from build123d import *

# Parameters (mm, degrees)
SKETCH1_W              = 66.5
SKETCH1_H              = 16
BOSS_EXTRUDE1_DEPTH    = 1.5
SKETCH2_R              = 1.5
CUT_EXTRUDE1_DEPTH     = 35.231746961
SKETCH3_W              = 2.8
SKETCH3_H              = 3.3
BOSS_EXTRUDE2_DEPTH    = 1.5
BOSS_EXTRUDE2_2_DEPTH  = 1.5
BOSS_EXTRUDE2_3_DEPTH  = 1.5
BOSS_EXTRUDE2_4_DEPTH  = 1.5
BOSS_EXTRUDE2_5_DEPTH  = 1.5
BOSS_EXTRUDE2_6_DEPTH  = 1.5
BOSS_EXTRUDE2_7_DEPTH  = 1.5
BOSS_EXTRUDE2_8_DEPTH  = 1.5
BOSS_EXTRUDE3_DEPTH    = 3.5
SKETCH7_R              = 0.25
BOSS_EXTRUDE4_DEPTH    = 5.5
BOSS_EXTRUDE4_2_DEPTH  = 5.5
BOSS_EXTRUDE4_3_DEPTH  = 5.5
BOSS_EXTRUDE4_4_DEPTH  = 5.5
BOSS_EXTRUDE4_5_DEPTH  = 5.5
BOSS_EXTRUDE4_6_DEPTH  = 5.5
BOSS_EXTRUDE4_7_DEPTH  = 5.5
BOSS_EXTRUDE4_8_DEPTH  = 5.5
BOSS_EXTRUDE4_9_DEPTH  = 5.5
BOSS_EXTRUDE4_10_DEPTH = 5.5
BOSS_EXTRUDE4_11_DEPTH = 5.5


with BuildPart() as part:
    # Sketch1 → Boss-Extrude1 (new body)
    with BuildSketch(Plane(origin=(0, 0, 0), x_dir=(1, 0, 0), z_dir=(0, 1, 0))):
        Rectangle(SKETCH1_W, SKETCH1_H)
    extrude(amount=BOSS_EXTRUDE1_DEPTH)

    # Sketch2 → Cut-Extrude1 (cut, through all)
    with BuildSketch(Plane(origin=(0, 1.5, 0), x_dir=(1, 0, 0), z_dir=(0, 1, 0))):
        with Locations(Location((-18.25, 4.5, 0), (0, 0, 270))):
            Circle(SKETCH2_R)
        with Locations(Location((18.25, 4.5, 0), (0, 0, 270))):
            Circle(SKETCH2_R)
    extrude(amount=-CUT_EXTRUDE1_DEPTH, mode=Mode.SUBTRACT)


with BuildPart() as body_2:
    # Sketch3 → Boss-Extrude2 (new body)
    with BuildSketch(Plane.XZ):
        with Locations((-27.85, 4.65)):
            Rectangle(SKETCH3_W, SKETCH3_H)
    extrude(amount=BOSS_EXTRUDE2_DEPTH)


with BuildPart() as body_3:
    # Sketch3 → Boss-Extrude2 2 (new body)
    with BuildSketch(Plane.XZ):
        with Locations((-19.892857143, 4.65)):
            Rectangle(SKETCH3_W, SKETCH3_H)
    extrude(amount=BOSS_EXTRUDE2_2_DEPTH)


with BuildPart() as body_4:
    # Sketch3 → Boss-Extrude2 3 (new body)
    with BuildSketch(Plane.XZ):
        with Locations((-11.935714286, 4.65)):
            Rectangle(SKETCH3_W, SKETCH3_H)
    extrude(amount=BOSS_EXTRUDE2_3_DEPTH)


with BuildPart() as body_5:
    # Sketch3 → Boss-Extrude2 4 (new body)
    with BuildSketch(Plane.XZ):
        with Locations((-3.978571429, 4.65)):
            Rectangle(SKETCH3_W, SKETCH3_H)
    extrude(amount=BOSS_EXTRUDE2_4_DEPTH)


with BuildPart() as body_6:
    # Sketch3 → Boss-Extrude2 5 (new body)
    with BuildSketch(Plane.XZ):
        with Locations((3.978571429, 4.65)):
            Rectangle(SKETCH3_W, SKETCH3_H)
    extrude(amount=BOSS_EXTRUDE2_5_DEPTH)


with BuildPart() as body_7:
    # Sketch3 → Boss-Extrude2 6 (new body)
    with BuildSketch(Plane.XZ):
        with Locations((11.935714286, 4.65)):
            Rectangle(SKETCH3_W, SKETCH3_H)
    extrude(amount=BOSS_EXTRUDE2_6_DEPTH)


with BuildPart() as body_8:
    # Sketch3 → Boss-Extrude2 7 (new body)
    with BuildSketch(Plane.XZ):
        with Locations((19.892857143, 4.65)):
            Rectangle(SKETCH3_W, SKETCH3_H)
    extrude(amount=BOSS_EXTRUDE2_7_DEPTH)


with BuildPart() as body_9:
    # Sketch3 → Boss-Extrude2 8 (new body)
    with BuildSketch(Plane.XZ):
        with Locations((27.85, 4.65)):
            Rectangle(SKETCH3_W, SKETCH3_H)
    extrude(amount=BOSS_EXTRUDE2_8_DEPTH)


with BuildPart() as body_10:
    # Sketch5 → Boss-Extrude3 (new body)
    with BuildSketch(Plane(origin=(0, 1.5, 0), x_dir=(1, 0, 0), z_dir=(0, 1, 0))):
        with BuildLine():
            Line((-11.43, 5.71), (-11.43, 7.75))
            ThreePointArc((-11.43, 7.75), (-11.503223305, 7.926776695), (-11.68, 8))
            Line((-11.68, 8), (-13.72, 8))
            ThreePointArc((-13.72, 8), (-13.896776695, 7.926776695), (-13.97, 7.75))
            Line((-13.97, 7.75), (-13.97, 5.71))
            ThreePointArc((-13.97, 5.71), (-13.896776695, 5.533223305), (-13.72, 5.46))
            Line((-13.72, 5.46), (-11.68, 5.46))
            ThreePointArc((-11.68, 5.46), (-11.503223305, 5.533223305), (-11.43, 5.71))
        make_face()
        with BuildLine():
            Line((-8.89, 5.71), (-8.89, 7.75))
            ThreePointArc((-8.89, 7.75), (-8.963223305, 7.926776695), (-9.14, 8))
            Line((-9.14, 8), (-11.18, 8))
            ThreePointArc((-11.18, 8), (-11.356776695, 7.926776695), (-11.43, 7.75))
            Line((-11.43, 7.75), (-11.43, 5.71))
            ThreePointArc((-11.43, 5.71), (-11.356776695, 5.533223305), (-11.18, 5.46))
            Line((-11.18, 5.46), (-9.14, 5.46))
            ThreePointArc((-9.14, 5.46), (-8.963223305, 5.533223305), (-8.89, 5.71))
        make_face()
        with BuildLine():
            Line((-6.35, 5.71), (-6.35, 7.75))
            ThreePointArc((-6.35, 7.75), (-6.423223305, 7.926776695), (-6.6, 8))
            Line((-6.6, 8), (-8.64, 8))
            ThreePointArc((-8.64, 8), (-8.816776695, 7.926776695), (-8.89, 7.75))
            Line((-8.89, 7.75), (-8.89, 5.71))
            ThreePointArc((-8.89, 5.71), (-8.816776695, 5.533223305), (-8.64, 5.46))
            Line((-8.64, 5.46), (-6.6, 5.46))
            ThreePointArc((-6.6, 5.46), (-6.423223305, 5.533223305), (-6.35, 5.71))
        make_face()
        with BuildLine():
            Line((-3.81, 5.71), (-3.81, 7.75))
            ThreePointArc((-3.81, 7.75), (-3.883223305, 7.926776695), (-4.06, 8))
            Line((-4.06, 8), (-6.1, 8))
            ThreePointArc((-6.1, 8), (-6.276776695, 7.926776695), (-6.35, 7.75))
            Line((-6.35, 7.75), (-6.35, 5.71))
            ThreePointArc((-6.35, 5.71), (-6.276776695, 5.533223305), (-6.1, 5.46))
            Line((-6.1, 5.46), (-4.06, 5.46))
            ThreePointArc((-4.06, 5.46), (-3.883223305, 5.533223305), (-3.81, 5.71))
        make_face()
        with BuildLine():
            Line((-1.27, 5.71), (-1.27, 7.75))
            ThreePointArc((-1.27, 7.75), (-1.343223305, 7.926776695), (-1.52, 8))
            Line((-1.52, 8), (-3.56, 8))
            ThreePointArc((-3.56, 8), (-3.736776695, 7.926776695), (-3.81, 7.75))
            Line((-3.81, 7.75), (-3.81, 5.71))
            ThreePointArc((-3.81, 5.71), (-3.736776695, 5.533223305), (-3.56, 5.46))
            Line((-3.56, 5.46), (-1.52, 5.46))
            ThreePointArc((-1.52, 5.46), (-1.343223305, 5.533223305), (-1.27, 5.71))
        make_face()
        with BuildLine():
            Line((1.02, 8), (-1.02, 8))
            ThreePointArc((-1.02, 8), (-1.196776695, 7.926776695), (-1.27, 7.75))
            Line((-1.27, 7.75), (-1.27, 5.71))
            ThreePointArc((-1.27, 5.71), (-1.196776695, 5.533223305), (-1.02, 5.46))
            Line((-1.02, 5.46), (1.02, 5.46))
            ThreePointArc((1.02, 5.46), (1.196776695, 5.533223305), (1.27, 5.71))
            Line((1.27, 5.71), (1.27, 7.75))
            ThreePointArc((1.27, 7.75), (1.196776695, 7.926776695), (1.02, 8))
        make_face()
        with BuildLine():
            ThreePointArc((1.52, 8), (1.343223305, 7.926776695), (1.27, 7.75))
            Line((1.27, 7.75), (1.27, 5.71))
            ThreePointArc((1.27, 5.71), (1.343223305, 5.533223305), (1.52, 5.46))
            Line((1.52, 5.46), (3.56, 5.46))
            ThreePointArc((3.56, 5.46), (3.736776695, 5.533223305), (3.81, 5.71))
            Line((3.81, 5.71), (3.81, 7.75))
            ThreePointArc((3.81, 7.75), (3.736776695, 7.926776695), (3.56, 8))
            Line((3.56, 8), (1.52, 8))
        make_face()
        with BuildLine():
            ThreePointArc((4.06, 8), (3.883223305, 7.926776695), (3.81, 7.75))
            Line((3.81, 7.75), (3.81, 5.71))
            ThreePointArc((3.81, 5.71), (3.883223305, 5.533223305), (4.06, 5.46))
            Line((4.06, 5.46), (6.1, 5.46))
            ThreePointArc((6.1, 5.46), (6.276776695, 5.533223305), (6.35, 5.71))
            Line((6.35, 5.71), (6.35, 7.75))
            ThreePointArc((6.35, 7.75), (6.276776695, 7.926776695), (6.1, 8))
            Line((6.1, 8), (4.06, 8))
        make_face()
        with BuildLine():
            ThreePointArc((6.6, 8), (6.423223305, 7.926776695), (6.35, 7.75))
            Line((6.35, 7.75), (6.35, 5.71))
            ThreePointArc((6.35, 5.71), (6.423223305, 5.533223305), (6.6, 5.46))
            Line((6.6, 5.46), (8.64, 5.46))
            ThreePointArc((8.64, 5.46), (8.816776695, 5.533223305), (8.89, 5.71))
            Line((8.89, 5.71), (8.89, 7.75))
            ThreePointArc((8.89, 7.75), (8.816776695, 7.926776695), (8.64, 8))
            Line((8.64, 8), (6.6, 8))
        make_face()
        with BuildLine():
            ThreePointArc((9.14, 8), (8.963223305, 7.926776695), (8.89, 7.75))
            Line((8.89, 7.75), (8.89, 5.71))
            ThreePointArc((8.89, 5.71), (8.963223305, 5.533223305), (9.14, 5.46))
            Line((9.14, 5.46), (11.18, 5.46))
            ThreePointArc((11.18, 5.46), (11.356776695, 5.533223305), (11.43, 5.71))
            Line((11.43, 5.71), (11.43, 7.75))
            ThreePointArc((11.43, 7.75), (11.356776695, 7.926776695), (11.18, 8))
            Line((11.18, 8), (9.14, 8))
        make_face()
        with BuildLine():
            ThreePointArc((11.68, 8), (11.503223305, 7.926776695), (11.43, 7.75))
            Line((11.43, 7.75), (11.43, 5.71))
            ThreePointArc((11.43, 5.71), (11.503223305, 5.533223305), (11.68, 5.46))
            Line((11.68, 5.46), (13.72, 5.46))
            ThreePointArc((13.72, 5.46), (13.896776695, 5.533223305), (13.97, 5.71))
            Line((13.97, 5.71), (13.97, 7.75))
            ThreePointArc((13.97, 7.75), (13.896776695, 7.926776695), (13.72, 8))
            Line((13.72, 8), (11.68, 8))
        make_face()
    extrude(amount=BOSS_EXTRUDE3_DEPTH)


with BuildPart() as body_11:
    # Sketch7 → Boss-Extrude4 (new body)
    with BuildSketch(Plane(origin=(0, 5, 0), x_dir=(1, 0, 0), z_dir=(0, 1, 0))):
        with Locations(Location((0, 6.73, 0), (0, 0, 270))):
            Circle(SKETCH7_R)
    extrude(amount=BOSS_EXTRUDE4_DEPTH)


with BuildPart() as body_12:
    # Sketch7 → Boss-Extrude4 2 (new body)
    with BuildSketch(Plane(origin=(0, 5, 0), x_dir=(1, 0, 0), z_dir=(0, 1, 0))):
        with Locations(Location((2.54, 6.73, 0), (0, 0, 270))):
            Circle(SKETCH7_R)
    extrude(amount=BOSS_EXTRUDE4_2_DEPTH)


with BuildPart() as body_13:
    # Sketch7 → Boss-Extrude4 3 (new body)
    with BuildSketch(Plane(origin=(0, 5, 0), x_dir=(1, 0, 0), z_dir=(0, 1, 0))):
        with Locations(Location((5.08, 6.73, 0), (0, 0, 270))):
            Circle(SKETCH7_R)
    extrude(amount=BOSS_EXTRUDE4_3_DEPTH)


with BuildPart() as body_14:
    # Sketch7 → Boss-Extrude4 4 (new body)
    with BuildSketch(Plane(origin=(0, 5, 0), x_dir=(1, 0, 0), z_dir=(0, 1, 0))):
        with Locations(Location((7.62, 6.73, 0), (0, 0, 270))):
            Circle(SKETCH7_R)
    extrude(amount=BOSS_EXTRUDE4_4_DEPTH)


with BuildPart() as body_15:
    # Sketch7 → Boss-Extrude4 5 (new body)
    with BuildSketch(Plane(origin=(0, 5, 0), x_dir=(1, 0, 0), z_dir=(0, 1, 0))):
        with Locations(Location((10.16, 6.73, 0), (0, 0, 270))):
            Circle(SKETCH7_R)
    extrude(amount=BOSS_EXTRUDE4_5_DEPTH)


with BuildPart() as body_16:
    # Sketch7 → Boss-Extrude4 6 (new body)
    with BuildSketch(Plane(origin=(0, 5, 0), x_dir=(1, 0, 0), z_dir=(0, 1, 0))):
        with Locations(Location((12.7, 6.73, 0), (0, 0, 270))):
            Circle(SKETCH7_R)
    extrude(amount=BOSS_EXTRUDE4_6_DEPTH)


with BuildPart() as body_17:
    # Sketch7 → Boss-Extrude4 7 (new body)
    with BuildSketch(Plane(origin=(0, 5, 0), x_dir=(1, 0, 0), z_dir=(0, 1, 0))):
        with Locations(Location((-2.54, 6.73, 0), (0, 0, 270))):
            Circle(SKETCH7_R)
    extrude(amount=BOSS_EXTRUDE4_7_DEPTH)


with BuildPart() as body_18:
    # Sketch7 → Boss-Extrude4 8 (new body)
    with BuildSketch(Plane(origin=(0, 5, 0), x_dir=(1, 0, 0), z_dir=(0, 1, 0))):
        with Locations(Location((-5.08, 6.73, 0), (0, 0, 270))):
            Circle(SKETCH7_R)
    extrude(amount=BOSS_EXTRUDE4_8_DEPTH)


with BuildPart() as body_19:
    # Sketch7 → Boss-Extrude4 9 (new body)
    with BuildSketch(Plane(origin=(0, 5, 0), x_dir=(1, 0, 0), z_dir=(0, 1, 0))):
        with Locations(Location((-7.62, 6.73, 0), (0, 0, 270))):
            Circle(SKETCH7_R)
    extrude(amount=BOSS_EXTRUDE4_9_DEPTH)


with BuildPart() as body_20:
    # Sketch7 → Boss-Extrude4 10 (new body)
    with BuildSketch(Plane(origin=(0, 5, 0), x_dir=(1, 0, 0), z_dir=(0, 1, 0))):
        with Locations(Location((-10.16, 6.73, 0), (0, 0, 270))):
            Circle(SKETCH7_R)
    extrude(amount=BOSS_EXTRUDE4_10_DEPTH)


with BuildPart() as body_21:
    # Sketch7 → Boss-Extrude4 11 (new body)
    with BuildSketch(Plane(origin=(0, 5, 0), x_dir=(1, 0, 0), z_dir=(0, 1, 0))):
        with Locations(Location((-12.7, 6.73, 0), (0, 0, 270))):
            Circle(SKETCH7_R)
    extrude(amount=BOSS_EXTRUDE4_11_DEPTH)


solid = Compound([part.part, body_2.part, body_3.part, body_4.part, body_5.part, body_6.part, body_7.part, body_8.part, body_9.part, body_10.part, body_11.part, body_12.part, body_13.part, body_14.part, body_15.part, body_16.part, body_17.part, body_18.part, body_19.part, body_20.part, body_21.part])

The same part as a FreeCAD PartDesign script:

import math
import FreeCAD as App
import Part
import Sketcher
Q = App.Units.Quantity

doc = App.newDocument("Part")
params = doc.addObject("Spreadsheet::Sheet", "Params")
for row, (alias, value) in enumerate([
    ("sketch1_height", "16 mm"),
    ("sketch1_width", "66.5 mm"),
    ("pad1_length", "1.5 mm"),
    ("sketch2_diameter", "3 mm"),
    ("sketch3_width", "2.8 mm"),
    ("sketch3_height", "3.3 mm"),
    ("pad2_length", "1.5 mm"),
    ("sketch4_width", "2.8 mm"),
    ("sketch4_height", "3.3 mm"),
    ("pad3_length", "1.5 mm"),
    ("sketch5_width", "2.8 mm"),
    ("sketch5_height", "3.3 mm"),
    ("pad4_length", "1.5 mm"),
    ("sketch6_width", "2.8 mm"),
    ("sketch6_height", "3.3 mm"),
    ("pad5_length", "1.5 mm"),
    ("sketch7_width", "2.8 mm"),
    ("sketch7_height", "3.3 mm"),
    ("pad6_length", "1.5 mm"),
    ("sketch8_width", "2.8 mm"),
    ("sketch8_height", "3.3 mm"),
    ("pad7_length", "1.5 mm"),
    ("sketch9_width", "2.8 mm"),
    ("sketch9_height", "3.3 mm"),
    ("pad8_length", "1.5 mm"),
    ("sketch10_width", "2.8 mm"),
    ("sketch10_height", "3.3 mm"),
    ("pad9_length", "1.5 mm"),
    ("sketch11_radius", "0.25 mm"),
    ("sketch11_width", "2.04 mm"),
    ("pad10_length", "3.5 mm"),
    ("sketch12_diameter", "0.5 mm"),
    ("pad11_length", "5.5 mm"),
    ("sketch13_diameter", "0.5 mm"),
    ("pad12_length", "5.5 mm"),
    ("sketch14_diameter", "0.5 mm"),
    ("pad13_length", "5.5 mm"),
    ("sketch15_diameter", "0.5 mm"),
    ("pad14_length", "5.5 mm"),
    ("sketch16_diameter", "0.5 mm"),
    ("pad15_length", "5.5 mm"),
    ("sketch17_diameter", "0.5 mm"),
    ("pad16_length", "5.5 mm"),
    ("sketch18_diameter", "0.5 mm"),
    ("pad17_length", "5.5 mm"),
    ("sketch19_diameter", "0.5 mm"),
    ("pad18_length", "5.5 mm"),
    ("sketch20_diameter", "0.5 mm"),
    ("pad19_length", "5.5 mm"),
    ("sketch21_diameter", "0.5 mm"),
    ("pad20_length", "5.5 mm"),
    ("sketch22_diameter", "0.5 mm"),
    ("pad21_length", "5.5 mm"),
], start=1):
    params.set(f"A{row}", alias)
    params.set(f"B{row}", "=" + value)
    params.setAlias(f"B{row}", alias)

body = doc.addObject("PartDesign::Body", "Body")

# Sketch on XZ plane
sketch1 = body.newObject("Sketcher::SketchObject", "Sketch")
sketch1.AttachmentSupport = (doc.getObject("XZ_Plane"), [""])
sketch1.MapMode = "FlatFace"
sketch1.addGeometry([
    Part.LineSegment(App.Vector(-33, -8, 0), App.Vector(-33, 8, 0)),
    Part.LineSegment(App.Vector(-33, 8, 0), App.Vector(33, 8, 0)),
    Part.LineSegment(App.Vector(33, 8, 0), App.Vector(33, -8, 0)),
    Part.LineSegment(App.Vector(33, -8, 0), App.Vector(-33, -8, 0)),
], False)
sketch1.addConstraint([
    Sketcher.Constraint("Coincident", 0, 2, 1, 1),
    Sketcher.Constraint("Coincident", 1, 2, 2, 1),
    Sketcher.Constraint("Coincident", 2, 2, 3, 1),
    Sketcher.Constraint("Coincident", 3, 2, 0, 1),
    Sketcher.Constraint("Vertical", 0),
    Sketcher.Constraint("Horizontal", 1),
    Sketcher.Constraint("Vertical", 2),
    Sketcher.Constraint("Horizontal", 3),
    Sketcher.Constraint("Symmetric", 0, 2, 2, 2, -1, 1),
    Sketcher.Constraint("DistanceY", 0, 1, 0, 2, Q("16 mm")),
    Sketcher.Constraint("DistanceX", 1, 1, 1, 2, Q("66.5 mm")),
])
sketch1.setExpression("Constraints[9]", "Params.sketch1_height")
sketch1.setExpression("Constraints[10]", "Params.sketch1_width")
pad1 = body.newObject("PartDesign::Pad", "Pad")
pad1.Profile = sketch1
pad1.setExpression("Length", "Params.pad1_length")
pad1.Reversed = True

# Sketch on XZ plane
sketch2 = body.newObject("Sketcher::SketchObject", "Sketch001")
sketch2.AttachmentSupport = (doc.getObject("XZ_Plane"), [""])
sketch2.MapMode = "FlatFace"
sketch2.AttachmentOffset = App.Placement(App.Vector(0, 0, -1.5), App.Rotation())
sketch2.addGeometry([
    Part.Circle(App.Vector(-18.2, -4.5, 0), App.Vector(0, 0, 1), 1.5),
    Part.Circle(App.Vector(18.2, -4.5, 0), App.Vector(0, 0, 1), 1.5),
], False)
sketch2.addConstraint([
    Sketcher.Constraint("Equal", 0, 1),
    Sketcher.Constraint("Symmetric", 0, 3, 1, 3, -2),
    Sketcher.Constraint("Diameter", 0, Q("3 mm")),
    Sketcher.Constraint("DistanceY", 0, 3, -1, 1, Q("4.5 mm")),
    Sketcher.Constraint("DistanceX", 0, 3, 1, 3, Q("36.5 mm")),
])
sketch2.setExpression("Constraints[2]", "Params.sketch2_diameter")
pocket1 = body.newObject("PartDesign::Pocket", "Pocket")
pocket1.Profile = sketch2
pocket1.Type = "ThroughAll"
pocket1.Reversed = True
body2 = doc.addObject("PartDesign::Body", "Body001")

# Sketch on XZ plane
sketch3 = body2.newObject("Sketcher::SketchObject", "Sketch002")
sketch3.AttachmentSupport = (doc.getObject("XZ_Plane001"), [""])
sketch3.MapMode = "FlatFace"
sketch3.addGeometry([
    Part.LineSegment(App.Vector(-29.2, 6.3, 0), App.Vector(-29.2, 3, 0)),
    Part.LineSegment(App.Vector(-29.2, 3, 0), App.Vector(-26.4, 3, 0)),
    Part.LineSegment(App.Vector(-26.4, 3, 0), App.Vector(-26.4, 6.3, 0)),
    Part.LineSegment(App.Vector(-26.4, 6.3, 0), App.Vector(-29.2, 6.3, 0)),
], False)
sketch3.addConstraint([
    Sketcher.Constraint("Coincident", 0, 2, 1, 1),
    Sketcher.Constraint("Coincident", 1, 2, 2, 1),
    Sketcher.Constraint("Coincident", 2, 2, 3, 1),
    Sketcher.Constraint("Coincident", 3, 2, 0, 1),
    Sketcher.Constraint("Vertical", 0),
    Sketcher.Constraint("Horizontal", 1),
    Sketcher.Constraint("Vertical", 2),
    Sketcher.Constraint("Horizontal", 3),
    Sketcher.Constraint("DistanceX", 1, 1, 1, 2, Q("2.8 mm")),
    Sketcher.Constraint("DistanceY", 0, 2, 0, 1, Q("3.3 mm")),
    Sketcher.Constraint("DistanceY", -1, 1, 0, 2, Q("3 mm")),
    Sketcher.Constraint("DistanceX", 0, 2, -1, 1, Q("29.25 mm")),
])
sketch3.setExpression("Constraints[8]", "Params.sketch3_width")
sketch3.setExpression("Constraints[9]", "Params.sketch3_height")
pad2 = body2.newObject("PartDesign::Pad", "Pad001")
pad2.Profile = sketch3
pad2.setExpression("Length", "Params.pad2_length")
body3 = doc.addObject("PartDesign::Body", "Body002")

# Sketch on XZ plane
sketch4 = body3.newObject("Sketcher::SketchObject", "Sketch003")
sketch4.AttachmentSupport = (doc.getObject("XZ_Plane002"), [""])
sketch4.MapMode = "FlatFace"
sketch4.addGeometry([
    Part.LineSegment(App.Vector(-21.3, 6.3, 0), App.Vector(-21.3, 3, 0)),
    Part.LineSegment(App.Vector(-21.3, 3, 0), App.Vector(-18.5, 3, 0)),
    Part.LineSegment(App.Vector(-18.5, 3, 0), App.Vector(-18.5, 6.3, 0)),
    Part.LineSegment(App.Vector(-18.5, 6.3, 0), App.Vector(-21.3, 6.3, 0)),
], False)
sketch4.addConstraint([
    Sketcher.Constraint("Coincident", 0, 2, 1, 1),
    Sketcher.Constraint("Coincident", 1, 2, 2, 1),
    Sketcher.Constraint("Coincident", 2, 2, 3, 1),
    Sketcher.Constraint("Coincident", 3, 2, 0, 1),
    Sketcher.Constraint("Vertical", 0),
    Sketcher.Constraint("Horizontal", 1),
    Sketcher.Constraint("Vertical", 2),
    Sketcher.Constraint("Horizontal", 3),
    Sketcher.Constraint("DistanceX", 1, 1, 1, 2, Q("2.8 mm")),
    Sketcher.Constraint("DistanceY", 0, 2, 0, 1, Q("3.3 mm")),
    Sketcher.Constraint("DistanceY", -1, 1, 0, 2, Q("3 mm")),
    Sketcher.Constraint("DistanceX", 0, 2, -1, 1, Q("21.292857 mm")),
])
sketch4.setExpression("Constraints[8]", "Params.sketch4_width")
sketch4.setExpression("Constraints[9]", "Params.sketch4_height")
pad3 = body3.newObject("PartDesign::Pad", "Pad002")
pad3.Profile = sketch4
pad3.setExpression("Length", "Params.pad3_length")
body4 = doc.addObject("PartDesign::Body", "Body003")

# Sketch on XZ plane
sketch5 = body4.newObject("Sketcher::SketchObject", "Sketch004")
sketch5.AttachmentSupport = (doc.getObject("XZ_Plane003"), [""])
sketch5.MapMode = "FlatFace"
sketch5.addGeometry([
    Part.LineSegment(App.Vector(-13.3, 6.3, 0), App.Vector(-13.3, 3, 0)),
    Part.LineSegment(App.Vector(-13.3, 3, 0), App.Vector(-10.5, 3, 0)),
    Part.LineSegment(App.Vector(-10.5, 3, 0), App.Vector(-10.5, 6.3, 0)),
    Part.LineSegment(App.Vector(-10.5, 6.3, 0), App.Vector(-13.3, 6.3, 0)),
], False)
sketch5.addConstraint([
    Sketcher.Constraint("Coincident", 0, 2, 1, 1),
    Sketcher.Constraint("Coincident", 1, 2, 2, 1),
    Sketcher.Constraint("Coincident", 2, 2, 3, 1),
    Sketcher.Constraint("Coincident", 3, 2, 0, 1),
    Sketcher.Constraint("Vertical", 0),
    Sketcher.Constraint("Horizontal", 1),
    Sketcher.Constraint("Vertical", 2),
    Sketcher.Constraint("Horizontal", 3),
    Sketcher.Constraint("DistanceX", 1, 1, 1, 2, Q("2.8 mm")),
    Sketcher.Constraint("DistanceY", 0, 2, 0, 1, Q("3.3 mm")),
    Sketcher.Constraint("DistanceY", -1, 1, 0, 2, Q("3 mm")),
    Sketcher.Constraint("DistanceX", 0, 2, -1, 1, Q("13.335714 mm")),
])
sketch5.setExpression("Constraints[8]", "Params.sketch5_width")
sketch5.setExpression("Constraints[9]", "Params.sketch5_height")
pad4 = body4.newObject("PartDesign::Pad", "Pad003")
pad4.Profile = sketch5
pad4.setExpression("Length", "Params.pad4_length")
body5 = doc.addObject("PartDesign::Body", "Body004")

# Sketch on XZ plane
sketch6 = body5.newObject("Sketcher::SketchObject", "Sketch005")
sketch6.AttachmentSupport = (doc.getObject("XZ_Plane004"), [""])
sketch6.MapMode = "FlatFace"
sketch6.addGeometry([
    Part.LineSegment(App.Vector(-5.4, 6.3, 0), App.Vector(-5.4, 3, 0)),
    Part.LineSegment(App.Vector(-5.4, 3, 0), App.Vector(-2.6, 3, 0)),
    Part.LineSegment(App.Vector(-2.6, 3, 0), App.Vector(-2.6, 6.3, 0)),
    Part.LineSegment(App.Vector(-2.6, 6.3, 0), App.Vector(-5.4, 6.3, 0)),
], False)
sketch6.addConstraint([
    Sketcher.Constraint("Coincident", 0, 2, 1, 1),
    Sketcher.Constraint("Coincident", 1, 2, 2, 1),
    Sketcher.Constraint("Coincident", 2, 2, 3, 1),
    Sketcher.Constraint("Coincident", 3, 2, 0, 1),
    Sketcher.Constraint("Vertical", 0),
    Sketcher.Constraint("Horizontal", 1),
    Sketcher.Constraint("Vertical", 2),
    Sketcher.Constraint("Horizontal", 3),
    Sketcher.Constraint("DistanceX", 1, 1, 1, 2, Q("2.8 mm")),
    Sketcher.Constraint("DistanceY", 0, 2, 0, 1, Q("3.3 mm")),
    Sketcher.Constraint("DistanceY", -1, 1, 0, 2, Q("3 mm")),
    Sketcher.Constraint("DistanceX", 0, 2, -1, 1, Q("5.378571 mm")),
])
sketch6.setExpression("Constraints[8]", "Params.sketch6_width")
sketch6.setExpression("Constraints[9]", "Params.sketch6_height")
pad5 = body5.newObject("PartDesign::Pad", "Pad004")
pad5.Profile = sketch6
pad5.setExpression("Length", "Params.pad5_length")
body6 = doc.addObject("PartDesign::Body", "Body005")

# Sketch on XZ plane
sketch7 = body6.newObject("Sketcher::SketchObject", "Sketch006")
sketch7.AttachmentSupport = (doc.getObject("XZ_Plane005"), [""])
sketch7.MapMode = "FlatFace"
sketch7.addGeometry([
    Part.LineSegment(App.Vector(2.6, 6.3, 0), App.Vector(2.6, 3, 0)),
    Part.LineSegment(App.Vector(2.6, 3, 0), App.Vector(5.4, 3, 0)),
    Part.LineSegment(App.Vector(5.4, 3, 0), App.Vector(5.4, 6.3, 0)),
    Part.LineSegment(App.Vector(5.4, 6.3, 0), App.Vector(2.6, 6.3, 0)),
], False)
sketch7.addConstraint([
    Sketcher.Constraint("Coincident", 0, 2, 1, 1),
    Sketcher.Constraint("Coincident", 1, 2, 2, 1),
    Sketcher.Constraint("Coincident", 2, 2, 3, 1),
    Sketcher.Constraint("Coincident", 3, 2, 0, 1),
    Sketcher.Constraint("Vertical", 0),
    Sketcher.Constraint("Horizontal", 1),
    Sketcher.Constraint("Vertical", 2),
    Sketcher.Constraint("Horizontal", 3),
    Sketcher.Constraint("DistanceX", 1, 1, 1, 2, Q("2.8 mm")),
    Sketcher.Constraint("DistanceY", 0, 2, 0, 1, Q("3.3 mm")),
    Sketcher.Constraint("DistanceY", -1, 1, 0, 2, Q("3 mm")),
    Sketcher.Constraint("DistanceX", -1, 1, 0, 2, Q("2.578571 mm")),
])
sketch7.setExpression("Constraints[8]", "Params.sketch7_width")
sketch7.setExpression("Constraints[9]", "Params.sketch7_height")
pad6 = body6.newObject("PartDesign::Pad", "Pad005")
pad6.Profile = sketch7
pad6.setExpression("Length", "Params.pad6_length")
body7 = doc.addObject("PartDesign::Body", "Body006")

# Sketch on XZ plane
sketch8 = body7.newObject("Sketcher::SketchObject", "Sketch007")
sketch8.AttachmentSupport = (doc.getObject("XZ_Plane006"), [""])
sketch8.MapMode = "FlatFace"
sketch8.addGeometry([
    Part.LineSegment(App.Vector(10.5, 6.3, 0), App.Vector(10.5, 3, 0)),
    Part.LineSegment(App.Vector(10.5, 3, 0), App.Vector(13.3, 3, 0)),
    Part.LineSegment(App.Vector(13.3, 3, 0), App.Vector(13.3, 6.3, 0)),
    Part.LineSegment(App.Vector(13.3, 6.3, 0), App.Vector(10.5, 6.3, 0)),
], False)
sketch8.addConstraint([
    Sketcher.Constraint("Coincident", 0, 2, 1, 1),
    Sketcher.Constraint("Coincident", 1, 2, 2, 1),
    Sketcher.Constraint("Coincident", 2, 2, 3, 1),
    Sketcher.Constraint("Coincident", 3, 2, 0, 1),
    Sketcher.Constraint("Vertical", 0),
    Sketcher.Constraint("Horizontal", 1),
    Sketcher.Constraint("Vertical", 2),
    Sketcher.Constraint("Horizontal", 3),
    Sketcher.Constraint("DistanceX", 1, 1, 1, 2, Q("2.8 mm")),
    Sketcher.Constraint("DistanceY", 0, 2, 0, 1, Q("3.3 mm")),
    Sketcher.Constraint("DistanceY", -1, 1, 0, 2, Q("3 mm")),
    Sketcher.Constraint("DistanceX", -1, 1, 0, 2, Q("10.535714 mm")),
])
sketch8.setExpression("Constraints[8]", "Params.sketch8_width")
sketch8.setExpression("Constraints[9]", "Params.sketch8_height")
pad7 = body7.newObject("PartDesign::Pad", "Pad006")
pad7.Profile = sketch8
pad7.setExpression("Length", "Params.pad7_length")
body8 = doc.addObject("PartDesign::Body", "Body007")

# Sketch on XZ plane
sketch9 = body8.newObject("Sketcher::SketchObject", "Sketch008")
sketch9.AttachmentSupport = (doc.getObject("XZ_Plane007"), [""])
sketch9.MapMode = "FlatFace"
sketch9.addGeometry([
    Part.LineSegment(App.Vector(18.5, 6.3, 0), App.Vector(18.5, 3, 0)),
    Part.LineSegment(App.Vector(18.5, 3, 0), App.Vector(21.3, 3, 0)),
    Part.LineSegment(App.Vector(21.3, 3, 0), App.Vector(21.3, 6.3, 0)),
    Part.LineSegment(App.Vector(21.3, 6.3, 0), App.Vector(18.5, 6.3, 0)),
], False)
sketch9.addConstraint([
    Sketcher.Constraint("Coincident", 0, 2, 1, 1),
    Sketcher.Constraint("Coincident", 1, 2, 2, 1),
    Sketcher.Constraint("Coincident", 2, 2, 3, 1),
    Sketcher.Constraint("Coincident", 3, 2, 0, 1),
    Sketcher.Constraint("Vertical", 0),
    Sketcher.Constraint("Horizontal", 1),
    Sketcher.Constraint("Vertical", 2),
    Sketcher.Constraint("Horizontal", 3),
    Sketcher.Constraint("DistanceX", 1, 1, 1, 2, Q("2.8 mm")),
    Sketcher.Constraint("DistanceY", 0, 2, 0, 1, Q("3.3 mm")),
    Sketcher.Constraint("DistanceY", -1, 1, 0, 2, Q("3 mm")),
    Sketcher.Constraint("DistanceX", -1, 1, 0, 2, Q("18.492857 mm")),
])
sketch9.setExpression("Constraints[8]", "Params.sketch9_width")
sketch9.setExpression("Constraints[9]", "Params.sketch9_height")
pad8 = body8.newObject("PartDesign::Pad", "Pad007")
pad8.Profile = sketch9
pad8.setExpression("Length", "Params.pad8_length")
body9 = doc.addObject("PartDesign::Body", "Body008")

# Sketch on XZ plane
sketch10 = body9.newObject("Sketcher::SketchObject", "Sketch009")
sketch10.AttachmentSupport = (doc.getObject("XZ_Plane008"), [""])
sketch10.MapMode = "FlatFace"
sketch10.addGeometry([
    Part.LineSegment(App.Vector(26.4, 6.3, 0), App.Vector(26.4, 3, 0)),
    Part.LineSegment(App.Vector(26.4, 3, 0), App.Vector(29.2, 3, 0)),
    Part.LineSegment(App.Vector(29.2, 3, 0), App.Vector(29.2, 6.3, 0)),
    Part.LineSegment(App.Vector(29.2, 6.3, 0), App.Vector(26.4, 6.3, 0)),
], False)
sketch10.addConstraint([
    Sketcher.Constraint("Coincident", 0, 2, 1, 1),
    Sketcher.Constraint("Coincident", 1, 2, 2, 1),
    Sketcher.Constraint("Coincident", 2, 2, 3, 1),
    Sketcher.Constraint("Coincident", 3, 2, 0, 1),
    Sketcher.Constraint("Vertical", 0),
    Sketcher.Constraint("Horizontal", 1),
    Sketcher.Constraint("Vertical", 2),
    Sketcher.Constraint("Horizontal", 3),
    Sketcher.Constraint("DistanceX", 1, 1, 1, 2, Q("2.8 mm")),
    Sketcher.Constraint("DistanceY", 0, 2, 0, 1, Q("3.3 mm")),
    Sketcher.Constraint("DistanceY", -1, 1, 0, 2, Q("3 mm")),
    Sketcher.Constraint("DistanceX", -1, 1, 0, 2, Q("26.45 mm")),
])
sketch10.setExpression("Constraints[8]", "Params.sketch10_width")
sketch10.setExpression("Constraints[9]", "Params.sketch10_height")
pad9 = body9.newObject("PartDesign::Pad", "Pad008")
pad9.Profile = sketch10
pad9.setExpression("Length", "Params.pad9_length")
body10 = doc.addObject("PartDesign::Body", "Body009")

# Sketch on XZ plane
sketch11 = body10.newObject("Sketcher::SketchObject", "Sketch010")
sketch11.AttachmentSupport = (doc.getObject("XZ_Plane009"), [""])
sketch11.MapMode = "FlatFace"
sketch11.AttachmentOffset = App.Placement(App.Vector(0, 0, -1.5), App.Rotation())
sketch11.addGeometry([
    Part.ArcOfCircle(Part.Circle(App.Vector(-11.68, -7.75, 0), App.Vector(0, 0, 1), 0.25), math.radians(-90), math.radians(0)),  # 0
    Part.LineSegment(App.Vector(-11.68, -8, 0), App.Vector(-13.72, -8, 0)),  # 1
    Part.ArcOfCircle(Part.Circle(App.Vector(-13.72, -7.75, 0), App.Vector(0, 0, 1), 0.25), math.radians(-180), math.radians(-90)),  # 2
    Part.LineSegment(App.Vector(-13.97, -7.75, 0), App.Vector(-13.97, -5.71, 0)),  # 3
    Part.ArcOfCircle(Part.Circle(App.Vector(-13.72, -5.71, 0), App.Vector(0, 0, 1), 0.25), math.radians(90), math.radians(180)),  # 4
    Part.LineSegment(App.Vector(-13.72, -5.46, 0), App.Vector(-11.68, -5.46, 0)),  # 5
    Part.ArcOfCircle(Part.Circle(App.Vector(-11.68, -5.71, 0), App.Vector(0, 0, 1), 0.25), math.radians(0), math.radians(90)),  # 6
    Part.ArcOfCircle(Part.Circle(App.Vector(-11.18, -5.71, 0), App.Vector(0, 0, 1), 0.25), math.radians(90), math.radians(180)),  # 7
    Part.LineSegment(App.Vector(-11.18, -5.46, 0), App.Vector(-9.14, -5.46, 0)),  # 8
    Part.ArcOfCircle(Part.Circle(App.Vector(-9.14, -5.71, 0), App.Vector(0, 0, 1), 0.25), math.radians(0), math.radians(90)),  # 9
    Part.ArcOfCircle(Part.Circle(App.Vector(-8.64, -5.71, 0), App.Vector(0, 0, 1), 0.25), math.radians(90), math.radians(180)),  # 10
    Part.LineSegment(App.Vector(-8.64, -5.46, 0), App.Vector(-6.6, -5.46, 0)),  # 11
    Part.ArcOfCircle(Part.Circle(App.Vector(-6.6, -5.71, 0), App.Vector(0, 0, 1), 0.25), math.radians(0), math.radians(90)),  # 12
    Part.ArcOfCircle(Part.Circle(App.Vector(-6.1, -5.71, 0), App.Vector(0, 0, 1), 0.25), math.radians(90), math.radians(180)),  # 13
    Part.LineSegment(App.Vector(-6.1, -5.46, 0), App.Vector(-4.06, -5.46, 0)),  # 14
    Part.ArcOfCircle(Part.Circle(App.Vector(-4.06, -5.71, 0), App.Vector(0, 0, 1), 0.25), math.radians(0), math.radians(90)),  # 15
    Part.ArcOfCircle(Part.Circle(App.Vector(-3.56, -5.71, 0), App.Vector(0, 0, 1), 0.25), math.radians(90), math.radians(180)),  # 16
    Part.LineSegment(App.Vector(-3.56, -5.46, 0), App.Vector(-1.52, -5.46, 0)),  # 17
    Part.ArcOfCircle(Part.Circle(App.Vector(-1.52, -5.71, 0), App.Vector(0, 0, 1), 0.25), math.radians(0), math.radians(90)),  # 18
    Part.ArcOfCircle(Part.Circle(App.Vector(-1.02, -5.71, 0), App.Vector(0, 0, 1), 0.25), math.radians(90), math.radians(180)),  # 19
    Part.LineSegment(App.Vector(-1.02, -5.46, 0), App.Vector(1.02, -5.46, 0)),  # 20
    Part.ArcOfCircle(Part.Circle(App.Vector(1.02, -5.71, 0), App.Vector(0, 0, 1), 0.25), math.radians(0), math.radians(90)),  # 21
    Part.ArcOfCircle(Part.Circle(App.Vector(1.52, -5.71, 0), App.Vector(0, 0, 1), 0.25), math.radians(90), math.radians(180)),  # 22
    Part.LineSegment(App.Vector(1.52, -5.46, 0), App.Vector(3.56, -5.46, 0)),  # 23
    Part.ArcOfCircle(Part.Circle(App.Vector(3.56, -5.71, 0), App.Vector(0, 0, 1), 0.25), math.radians(0), math.radians(90)),  # 24
    Part.ArcOfCircle(Part.Circle(App.Vector(4.06, -5.71, 0), App.Vector(0, 0, 1), 0.25), math.radians(90), math.radians(180)),  # 25
    Part.LineSegment(App.Vector(4.06, -5.46, 0), App.Vector(6.1, -5.46, 0)),  # 26
    Part.ArcOfCircle(Part.Circle(App.Vector(6.1, -5.71, 0), App.Vector(0, 0, 1), 0.25), math.radians(0), math.radians(90)),  # 27
    Part.ArcOfCircle(Part.Circle(App.Vector(6.6, -5.71, 0), App.Vector(0, 0, 1), 0.25), math.radians(90), math.radians(180)),  # 28
    Part.LineSegment(App.Vector(6.6, -5.46, 0), App.Vector(8.64, -5.46, 0)),  # 29
    Part.ArcOfCircle(Part.Circle(App.Vector(8.64, -5.71, 0), App.Vector(0, 0, 1), 0.25), math.radians(0), math.radians(90)),  # 30
    Part.ArcOfCircle(Part.Circle(App.Vector(9.14, -5.71, 0), App.Vector(0, 0, 1), 0.25), math.radians(90), math.radians(180)),  # 31
    Part.LineSegment(App.Vector(9.14, -5.46, 0), App.Vector(11.18, -5.46, 0)),  # 32
    Part.ArcOfCircle(Part.Circle(App.Vector(11.18, -5.71, 0), App.Vector(0, 0, 1), 0.25), math.radians(0), math.radians(90)),  # 33
    Part.ArcOfCircle(Part.Circle(App.Vector(11.68, -5.71, 0), App.Vector(0, 0, 1), 0.25), math.radians(90), math.radians(180)),  # 34
    Part.LineSegment(App.Vector(11.68, -5.46, 0), App.Vector(13.72, -5.46, 0)),  # 35
    Part.ArcOfCircle(Part.Circle(App.Vector(13.72, -5.71, 0), App.Vector(0, 0, 1), 0.25), math.radians(0), math.radians(90)),  # 36
    Part.LineSegment(App.Vector(13.97, -5.71, 0), App.Vector(13.97, -7.75, 0)),  # 37
    Part.ArcOfCircle(Part.Circle(App.Vector(13.72, -7.75, 0), App.Vector(0, 0, 1), 0.25), math.radians(-90), math.radians(0)),  # 38
    Part.LineSegment(App.Vector(13.72, -8, 0), App.Vector(11.68, -8, 0)),  # 39
    Part.ArcOfCircle(Part.Circle(App.Vector(11.68, -7.75, 0), App.Vector(0, 0, 1), 0.25), math.radians(-180), math.radians(-90)),  # 40
    Part.ArcOfCircle(Part.Circle(App.Vector(11.18, -7.75, 0), App.Vector(0, 0, 1), 0.25), math.radians(-90), math.radians(0)),  # 41
    Part.LineSegment(App.Vector(11.18, -8, 0), App.Vector(9.14, -8, 0)),  # 42
    Part.ArcOfCircle(Part.Circle(App.Vector(9.14, -7.75, 0), App.Vector(0, 0, 1), 0.25), math.radians(-180), math.radians(-90)),  # 43
    Part.ArcOfCircle(Part.Circle(App.Vector(8.64, -7.75, 0), App.Vector(0, 0, 1), 0.25), math.radians(-90), math.radians(0)),  # 44
    Part.LineSegment(App.Vector(8.64, -8, 0), App.Vector(6.6, -8, 0)),  # 45
    Part.ArcOfCircle(Part.Circle(App.Vector(6.6, -7.75, 0), App.Vector(0, 0, 1), 0.25), math.radians(-180), math.radians(-90)),  # 46
    Part.ArcOfCircle(Part.Circle(App.Vector(6.1, -7.75, 0), App.Vector(0, 0, 1), 0.25), math.radians(-90), math.radians(0)),  # 47
    Part.LineSegment(App.Vector(6.1, -8, 0), App.Vector(4.06, -8, 0)),  # 48
    Part.ArcOfCircle(Part.Circle(App.Vector(4.06, -7.75, 0), App.Vector(0, 0, 1), 0.25), math.radians(-180), math.radians(-90)),  # 49
    Part.ArcOfCircle(Part.Circle(App.Vector(3.56, -7.75, 0), App.Vector(0, 0, 1), 0.25), math.radians(-90), math.radians(0)),  # 50
    Part.LineSegment(App.Vector(3.56, -8, 0), App.Vector(1.52, -8, 0)),  # 51
    Part.ArcOfCircle(Part.Circle(App.Vector(1.52, -7.75, 0), App.Vector(0, 0, 1), 0.25), math.radians(-180), math.radians(-90)),  # 52
    Part.ArcOfCircle(Part.Circle(App.Vector(1.02, -7.75, 0), App.Vector(0, 0, 1), 0.25), math.radians(-90), math.radians(0)),  # 53
    Part.LineSegment(App.Vector(1.02, -8, 0), App.Vector(-1.02, -8, 0)),  # 54
    Part.ArcOfCircle(Part.Circle(App.Vector(-1.02, -7.75, 0), App.Vector(0, 0, 1), 0.25), math.radians(-180), math.radians(-90)),  # 55
    Part.ArcOfCircle(Part.Circle(App.Vector(-1.52, -7.75, 0), App.Vector(0, 0, 1), 0.25), math.radians(-90), math.radians(0)),  # 56
    Part.LineSegment(App.Vector(-1.52, -8, 0), App.Vector(-3.56, -8, 0)),  # 57
    Part.ArcOfCircle(Part.Circle(App.Vector(-3.56, -7.75, 0), App.Vector(0, 0, 1), 0.25), math.radians(-180), math.radians(-90)),  # 58
    Part.ArcOfCircle(Part.Circle(App.Vector(-4.06, -7.75, 0), App.Vector(0, 0, 1), 0.25), math.radians(-90), math.radians(0)),  # 59
    Part.LineSegment(App.Vector(-4.06, -8, 0), App.Vector(-6.1, -8, 0)),  # 60
    Part.ArcOfCircle(Part.Circle(App.Vector(-6.1, -7.75, 0), App.Vector(0, 0, 1), 0.25), math.radians(-180), math.radians(-90)),  # 61
    Part.ArcOfCircle(Part.Circle(App.Vector(-6.6, -7.75, 0), App.Vector(0, 0, 1), 0.25), math.radians(-90), math.radians(0)),  # 62
    Part.LineSegment(App.Vector(-6.6, -8, 0), App.Vector(-8.64, -8, 0)),  # 63
    Part.ArcOfCircle(Part.Circle(App.Vector(-8.64, -7.75, 0), App.Vector(0, 0, 1), 0.25), math.radians(-180), math.radians(-90)),  # 64
    Part.ArcOfCircle(Part.Circle(App.Vector(-9.14, -7.75, 0), App.Vector(0, 0, 1), 0.25), math.radians(-90), math.radians(0)),  # 65
    Part.LineSegment(App.Vector(-9.14, -8, 0), App.Vector(-11.18, -8, 0)),  # 66
    Part.ArcOfCircle(Part.Circle(App.Vector(-11.18, -7.75, 0), App.Vector(0, 0, 1), 0.25), math.radians(-180), math.radians(-90)),  # 67
], False)
sketch11.addConstraint([
    Sketcher.Constraint("Tangent", 0, 1, 1, 1),
    Sketcher.Constraint("Tangent", 1, 2, 2, 2),
    Sketcher.Constraint("Tangent", 2, 1, 3, 1),
    Sketcher.Constraint("Tangent", 3, 2, 4, 2),
    Sketcher.Constraint("Tangent", 4, 1, 5, 1),
    Sketcher.Constraint("Tangent", 5, 2, 6, 2),
    Sketcher.Constraint("Tangent", 6, 1, 7, 2),
    Sketcher.Constraint("Tangent", 7, 1, 8, 1),
    Sketcher.Constraint("Tangent", 8, 2, 9, 2),
    Sketcher.Constraint("Tangent", 9, 1, 10, 2),
    Sketcher.Constraint("Tangent", 10, 1, 11, 1),
    Sketcher.Constraint("Tangent", 11, 2, 12, 2),
    Sketcher.Constraint("Tangent", 12, 1, 13, 2),
    Sketcher.Constraint("Tangent", 13, 1, 14, 1),
    Sketcher.Constraint("Tangent", 14, 2, 15, 2),
    Sketcher.Constraint("Tangent", 15, 1, 16, 2),
    Sketcher.Constraint("Tangent", 16, 1, 17, 1),
    Sketcher.Constraint("Tangent", 17, 2, 18, 2),
    Sketcher.Constraint("Tangent", 18, 1, 19, 2),
    Sketcher.Constraint("Tangent", 19, 1, 20, 1),
    Sketcher.Constraint("Tangent", 20, 2, 21, 2),
    Sketcher.Constraint("Tangent", 21, 1, 22, 2),
    Sketcher.Constraint("Tangent", 22, 1, 23, 1),
    Sketcher.Constraint("Tangent", 23, 2, 24, 2),
    Sketcher.Constraint("Tangent", 24, 1, 25, 2),
    Sketcher.Constraint("Tangent", 25, 1, 26, 1),
    Sketcher.Constraint("Tangent", 26, 2, 27, 2),
    Sketcher.Constraint("Tangent", 27, 1, 28, 2),
    Sketcher.Constraint("Tangent", 28, 1, 29, 1),
    Sketcher.Constraint("Tangent", 29, 2, 30, 2),
    Sketcher.Constraint("Tangent", 30, 1, 31, 2),
    Sketcher.Constraint("Tangent", 31, 1, 32, 1),
    Sketcher.Constraint("Tangent", 32, 2, 33, 2),
    Sketcher.Constraint("Tangent", 33, 1, 34, 2),
    Sketcher.Constraint("Tangent", 34, 1, 35, 1),
    Sketcher.Constraint("Tangent", 35, 2, 36, 2),
    Sketcher.Constraint("Tangent", 36, 1, 37, 1),
    Sketcher.Constraint("Tangent", 37, 2, 38, 2),
    Sketcher.Constraint("Tangent", 38, 1, 39, 1),
    Sketcher.Constraint("Tangent", 39, 2, 40, 2),
    Sketcher.Constraint("Tangent", 40, 1, 41, 2),
    Sketcher.Constraint("Tangent", 41, 1, 42, 1),
    Sketcher.Constraint("Tangent", 42, 2, 43, 2),
    Sketcher.Constraint("Tangent", 43, 1, 44, 2),
    Sketcher.Constraint("Tangent", 44, 1, 45, 1),
    Sketcher.Constraint("Tangent", 45, 2, 46, 2),
    Sketcher.Constraint("Tangent", 46, 1, 47, 2),
    Sketcher.Constraint("Tangent", 47, 1, 48, 1),
    Sketcher.Constraint("Tangent", 48, 2, 49, 2),
    Sketcher.Constraint("Tangent", 49, 1, 50, 2),
    Sketcher.Constraint("Tangent", 50, 1, 51, 1),
    Sketcher.Constraint("Tangent", 51, 2, 52, 2),
    Sketcher.Constraint("Tangent", 52, 1, 53, 2),
    Sketcher.Constraint("Tangent", 53, 1, 54, 1),
    Sketcher.Constraint("Tangent", 54, 2, 55, 2),
    Sketcher.Constraint("Tangent", 55, 1, 56, 2),
    Sketcher.Constraint("Tangent", 56, 1, 57, 1),
    Sketcher.Constraint("Tangent", 57, 2, 58, 2),
    Sketcher.Constraint("Tangent", 58, 1, 59, 2),
    Sketcher.Constraint("Tangent", 59, 1, 60, 1),
    Sketcher.Constraint("Tangent", 60, 2, 61, 2),
    Sketcher.Constraint("Tangent", 61, 1, 62, 2),
    Sketcher.Constraint("Tangent", 62, 1, 63, 1),
    Sketcher.Constraint("Tangent", 63, 2, 64, 2),
    Sketcher.Constraint("Tangent", 64, 1, 65, 2),
    Sketcher.Constraint("Tangent", 65, 1, 66, 1),
    Sketcher.Constraint("Tangent", 66, 2, 67, 2),
    Sketcher.Constraint("Tangent", 67, 1, 0, 2),
    Sketcher.Constraint("Horizontal", 1),
    Sketcher.Constraint("Vertical", 3),
    Sketcher.Constraint("Horizontal", 5),
    Sketcher.Constraint("Horizontal", 8),
    Sketcher.Constraint("Horizontal", 11),
    Sketcher.Constraint("Horizontal", 14),
    Sketcher.Constraint("Horizontal", 17),
    Sketcher.Constraint("Horizontal", 20),
    Sketcher.Constraint("Horizontal", 23),
    Sketcher.Constraint("Horizontal", 26),
    Sketcher.Constraint("Horizontal", 29),
    Sketcher.Constraint("Horizontal", 32),
    Sketcher.Constraint("Horizontal", 35),
    Sketcher.Constraint("Vertical", 37),
    Sketcher.Constraint("Horizontal", 39),
    Sketcher.Constraint("Horizontal", 42),
    Sketcher.Constraint("Horizontal", 45),
    Sketcher.Constraint("Horizontal", 48),
    Sketcher.Constraint("Horizontal", 51),
    Sketcher.Constraint("Horizontal", 54),
    Sketcher.Constraint("Horizontal", 57),
    Sketcher.Constraint("Horizontal", 60),
    Sketcher.Constraint("Horizontal", 63),
    Sketcher.Constraint("Horizontal", 66),
    Sketcher.Constraint("Equal", 0, 2),
    Sketcher.Constraint("Equal", 2, 4),
    Sketcher.Constraint("Equal", 4, 6),
    Sketcher.Constraint("Equal", 6, 7),
    Sketcher.Constraint("Equal", 7, 9),
    Sketcher.Constraint("Equal", 9, 10),
    Sketcher.Constraint("Equal", 10, 12),
    Sketcher.Constraint("Equal", 12, 13),
    Sketcher.Constraint("Equal", 13, 15),
    Sketcher.Constraint("Equal", 15, 16),
    Sketcher.Constraint("Equal", 16, 18),
    Sketcher.Constraint("Equal", 18, 19),
    Sketcher.Constraint("Equal", 19, 21),
    Sketcher.Constraint("Equal", 21, 22),
    Sketcher.Constraint("Equal", 22, 24),
    Sketcher.Constraint("Equal", 24, 25),
    Sketcher.Constraint("Equal", 25, 27),
    Sketcher.Constraint("Equal", 27, 28),
    Sketcher.Constraint("Equal", 28, 30),
    Sketcher.Constraint("Equal", 30, 31),
    Sketcher.Constraint("Equal", 31, 33),
    Sketcher.Constraint("Equal", 33, 34),
    Sketcher.Constraint("Equal", 34, 36),
    Sketcher.Constraint("Equal", 36, 38),
    Sketcher.Constraint("Equal", 38, 40),
    Sketcher.Constraint("Equal", 40, 41),
    Sketcher.Constraint("Equal", 41, 43),
    Sketcher.Constraint("Equal", 43, 44),
    Sketcher.Constraint("Equal", 44, 46),
    Sketcher.Constraint("Equal", 46, 47),
    Sketcher.Constraint("Equal", 47, 49),
    Sketcher.Constraint("Equal", 49, 50),
    Sketcher.Constraint("Equal", 50, 52),
    Sketcher.Constraint("Equal", 52, 53),
    Sketcher.Constraint("Equal", 53, 55),
    Sketcher.Constraint("Equal", 55, 56),
    Sketcher.Constraint("Equal", 56, 58),
    Sketcher.Constraint("Equal", 58, 59),
    Sketcher.Constraint("Equal", 59, 61),
    Sketcher.Constraint("Equal", 61, 62),
    Sketcher.Constraint("Equal", 62, 64),
    Sketcher.Constraint("Equal", 64, 65),
    Sketcher.Constraint("Equal", 65, 67),
    Sketcher.Constraint("Symmetric", 18, 3, 22, 3, -2),
    Sketcher.Constraint("Symmetric", 15, 3, 25, 3, -2),
    Sketcher.Constraint("Symmetric", 12, 3, 28, 3, -2),
    Sketcher.Constraint("Symmetric", 9, 3, 31, 3, -2),
    Sketcher.Constraint("Symmetric", 6, 3, 34, 3, -2),
    Sketcher.Constraint("Symmetric", 2, 3, 38, 3, -2),
    Sketcher.Constraint("Symmetric", 52, 3, 56, 3, -2),
    Sketcher.Constraint("Symmetric", 49, 3, 59, 3, -2),
    Sketcher.Constraint("Symmetric", 46, 3, 62, 3, -2),
    Sketcher.Constraint("Symmetric", 43, 3, 65, 3, -2),
    Sketcher.Constraint("Horizontal", 6, 3, 7, 3),
    Sketcher.Constraint("Horizontal", 9, 3, 10, 3),
    Sketcher.Constraint("Horizontal", 12, 3, 13, 3),
    Sketcher.Constraint("Horizontal", 15, 3, 16, 3),
    Sketcher.Constraint("Horizontal", 18, 3, 19, 3),
    Sketcher.Constraint("Horizontal", 40, 3, 41, 3),
    Sketcher.Constraint("Horizontal", 43, 3, 44, 3),
    Sketcher.Constraint("Horizontal", 46, 3, 47, 3),
    Sketcher.Constraint("Horizontal", 49, 3, 50, 3),
    Sketcher.Constraint("Horizontal", 52, 3, 53, 3),
    Sketcher.Constraint("Vertical", 0, 3, 6, 3),
    Sketcher.Constraint("Vertical", 34, 3, 40, 3),
    Sketcher.Constraint("Vertical", 31, 3, 43, 3),
    Sketcher.Constraint("Vertical", 28, 3, 46, 3),
    Sketcher.Constraint("Vertical", 25, 3, 49, 3),
    Sketcher.Constraint("Vertical", 22, 3, 52, 3),
    Sketcher.Constraint("Equal", 5, 8),
    Sketcher.Constraint("Equal", 8, 11),
    Sketcher.Constraint("Equal", 11, 14),
    Sketcher.Constraint("Equal", 14, 17),
    Sketcher.Constraint("Equal", 17, 20),
    Sketcher.Constraint("Equal", 66, 3),
    Sketcher.Constraint("Radius", 0, Q("0.25 mm")),
    Sketcher.Constraint("DistanceY", 0, 1, -1, 1, Q("8 mm")),
    Sketcher.Constraint("DistanceX", 1, 2, 1, 1, Q("2.04 mm")),
])
sketch11.setExpression("Constraints[167]", "Params.sketch11_radius")
sketch11.setExpression("Constraints[169]", "Params.sketch11_width")
pad10 = body10.newObject("PartDesign::Pad", "Pad009")
pad10.Profile = sketch11
pad10.setExpression("Length", "Params.pad10_length")
pad10.Reversed = True
body11 = doc.addObject("PartDesign::Body", "Body010")

# Sketch on XZ plane
sketch12 = body11.newObject("Sketcher::SketchObject", "Sketch011")
sketch12.AttachmentSupport = (doc.getObject("XZ_Plane010"), [""])
sketch12.MapMode = "FlatFace"
sketch12.AttachmentOffset = App.Placement(App.Vector(0, 0, -5), App.Rotation())
sketch12.addGeometry(Part.Circle(App.Vector(0, -6.73, 0), App.Vector(0, 0, 1), 0.25), False)
sketch12.addConstraint([
    Sketcher.Constraint("PointOnObject", 0, 3, -2),
    Sketcher.Constraint("Diameter", 0, Q("0.5 mm")),
    Sketcher.Constraint("DistanceY", 0, 3, -1, 1, Q("6.73 mm")),
])
sketch12.setExpression("Constraints[1]", "Params.sketch12_diameter")
pad11 = body11.newObject("PartDesign::Pad", "Pad010")
pad11.Profile = sketch12
pad11.setExpression("Length", "Params.pad11_length")
pad11.Reversed = True
body12 = doc.addObject("PartDesign::Body", "Body011")

# Sketch on XZ plane
sketch13 = body12.newObject("Sketcher::SketchObject", "Sketch012")
sketch13.AttachmentSupport = (doc.getObject("XZ_Plane011"), [""])
sketch13.MapMode = "FlatFace"
sketch13.AttachmentOffset = App.Placement(App.Vector(0, 0, -5), App.Rotation())
sketch13.addGeometry(Part.Circle(App.Vector(2.54, -6.73, 0), App.Vector(0, 0, 1), 0.25), False)
sketch13.addConstraint([
    Sketcher.Constraint("Diameter", 0, Q("0.5 mm")),
    Sketcher.Constraint("DistanceX", -1, 1, 0, 3, Q("2.54 mm")),
    Sketcher.Constraint("DistanceY", 0, 3, -1, 1, Q("6.73 mm")),
])
sketch13.setExpression("Constraints[0]", "Params.sketch13_diameter")
pad12 = body12.newObject("PartDesign::Pad", "Pad011")
pad12.Profile = sketch13
pad12.setExpression("Length", "Params.pad12_length")
pad12.Reversed = True
body13 = doc.addObject("PartDesign::Body", "Body012")

# Sketch on XZ plane
sketch14 = body13.newObject("Sketcher::SketchObject", "Sketch013")
sketch14.AttachmentSupport = (doc.getObject("XZ_Plane012"), [""])
sketch14.MapMode = "FlatFace"
sketch14.AttachmentOffset = App.Placement(App.Vector(0, 0, -5), App.Rotation())
sketch14.addGeometry(Part.Circle(App.Vector(5.08, -6.73, 0), App.Vector(0, 0, 1), 0.25), False)
sketch14.addConstraint([
    Sketcher.Constraint("Diameter", 0, Q("0.5 mm")),
    Sketcher.Constraint("DistanceX", -1, 1, 0, 3, Q("5.08 mm")),
    Sketcher.Constraint("DistanceY", 0, 3, -1, 1, Q("6.73 mm")),
])
sketch14.setExpression("Constraints[0]", "Params.sketch14_diameter")
pad13 = body13.newObject("PartDesign::Pad", "Pad012")
pad13.Profile = sketch14
pad13.setExpression("Length", "Params.pad13_length")
pad13.Reversed = True
body14 = doc.addObject("PartDesign::Body", "Body013")

# Sketch on XZ plane
sketch15 = body14.newObject("Sketcher::SketchObject", "Sketch014")
sketch15.AttachmentSupport = (doc.getObject("XZ_Plane013"), [""])
sketch15.MapMode = "FlatFace"
sketch15.AttachmentOffset = App.Placement(App.Vector(0, 0, -5), App.Rotation())
sketch15.addGeometry(Part.Circle(App.Vector(7.62, -6.73, 0), App.Vector(0, 0, 1), 0.25), False)
sketch15.addConstraint([
    Sketcher.Constraint("Diameter", 0, Q("0.5 mm")),
    Sketcher.Constraint("DistanceX", -1, 1, 0, 3, Q("7.62 mm")),
    Sketcher.Constraint("DistanceY", 0, 3, -1, 1, Q("6.73 mm")),
])
sketch15.setExpression("Constraints[0]", "Params.sketch15_diameter")
pad14 = body14.newObject("PartDesign::Pad", "Pad013")
pad14.Profile = sketch15
pad14.setExpression("Length", "Params.pad14_length")
pad14.Reversed = True
body15 = doc.addObject("PartDesign::Body", "Body014")

# Sketch on XZ plane
sketch16 = body15.newObject("Sketcher::SketchObject", "Sketch015")
sketch16.AttachmentSupport = (doc.getObject("XZ_Plane014"), [""])
sketch16.MapMode = "FlatFace"
sketch16.AttachmentOffset = App.Placement(App.Vector(0, 0, -5), App.Rotation())
sketch16.addGeometry(Part.Circle(App.Vector(10.16, -6.73, 0), App.Vector(0, 0, 1), 0.25), False)
sketch16.addConstraint([
    Sketcher.Constraint("Diameter", 0, Q("0.5 mm")),
    Sketcher.Constraint("DistanceX", -1, 1, 0, 3, Q("10.16 mm")),
    Sketcher.Constraint("DistanceY", 0, 3, -1, 1, Q("6.73 mm")),
])
sketch16.setExpression("Constraints[0]", "Params.sketch16_diameter")
pad15 = body15.newObject("PartDesign::Pad", "Pad014")
pad15.Profile = sketch16
pad15.setExpression("Length", "Params.pad15_length")
pad15.Reversed = True
body16 = doc.addObject("PartDesign::Body", "Body015")

# Sketch on XZ plane
sketch17 = body16.newObject("Sketcher::SketchObject", "Sketch016")
sketch17.AttachmentSupport = (doc.getObject("XZ_Plane015"), [""])
sketch17.MapMode = "FlatFace"
sketch17.AttachmentOffset = App.Placement(App.Vector(0, 0, -5), App.Rotation())
sketch17.addGeometry(Part.Circle(App.Vector(12.7, -6.73, 0), App.Vector(0, 0, 1), 0.25), False)
sketch17.addConstraint([
    Sketcher.Constraint("Diameter", 0, Q("0.5 mm")),
    Sketcher.Constraint("DistanceX", -1, 1, 0, 3, Q("12.7 mm")),
    Sketcher.Constraint("DistanceY", 0, 3, -1, 1, Q("6.73 mm")),
])
sketch17.setExpression("Constraints[0]", "Params.sketch17_diameter")
pad16 = body16.newObject("PartDesign::Pad", "Pad015")
pad16.Profile = sketch17
pad16.setExpression("Length", "Params.pad16_length")
pad16.Reversed = True
body17 = doc.addObject("PartDesign::Body", "Body016")

# Sketch on XZ plane
sketch18 = body17.newObject("Sketcher::SketchObject", "Sketch017")
sketch18.AttachmentSupport = (doc.getObject("XZ_Plane016"), [""])
sketch18.MapMode = "FlatFace"
sketch18.AttachmentOffset = App.Placement(App.Vector(0, 0, -5), App.Rotation())
sketch18.addGeometry(Part.Circle(App.Vector(-2.54, -6.73, 0), App.Vector(0, 0, 1), 0.25), False)
sketch18.addConstraint([
    Sketcher.Constraint("Diameter", 0, Q("0.5 mm")),
    Sketcher.Constraint("DistanceX", 0, 3, -1, 1, Q("2.54 mm")),
    Sketcher.Constraint("DistanceY", 0, 3, -1, 1, Q("6.73 mm")),
])
sketch18.setExpression("Constraints[0]", "Params.sketch18_diameter")
pad17 = body17.newObject("PartDesign::Pad", "Pad016")
pad17.Profile = sketch18
pad17.setExpression("Length", "Params.pad17_length")
pad17.Reversed = True
body18 = doc.addObject("PartDesign::Body", "Body017")

# Sketch on XZ plane
sketch19 = body18.newObject("Sketcher::SketchObject", "Sketch018")
sketch19.AttachmentSupport = (doc.getObject("XZ_Plane017"), [""])
sketch19.MapMode = "FlatFace"
sketch19.AttachmentOffset = App.Placement(App.Vector(0, 0, -5), App.Rotation())
sketch19.addGeometry(Part.Circle(App.Vector(-5.08, -6.73, 0), App.Vector(0, 0, 1), 0.25), False)
sketch19.addConstraint([
    Sketcher.Constraint("Diameter", 0, Q("0.5 mm")),
    Sketcher.Constraint("DistanceX", 0, 3, -1, 1, Q("5.08 mm")),
    Sketcher.Constraint("DistanceY", 0, 3, -1, 1, Q("6.73 mm")),
])
sketch19.setExpression("Constraints[0]", "Params.sketch19_diameter")
pad18 = body18.newObject("PartDesign::Pad", "Pad017")
pad18.Profile = sketch19
pad18.setExpression("Length", "Params.pad18_length")
pad18.Reversed = True
body19 = doc.addObject("PartDesign::Body", "Body018")

# Sketch on XZ plane
sketch20 = body19.newObject("Sketcher::SketchObject", "Sketch019")
sketch20.AttachmentSupport = (doc.getObject("XZ_Plane018"), [""])
sketch20.MapMode = "FlatFace"
sketch20.AttachmentOffset = App.Placement(App.Vector(0, 0, -5), App.Rotation())
sketch20.addGeometry(Part.Circle(App.Vector(-7.62, -6.73, 0), App.Vector(0, 0, 1), 0.25), False)
sketch20.addConstraint([
    Sketcher.Constraint("Diameter", 0, Q("0.5 mm")),
    Sketcher.Constraint("DistanceX", 0, 3, -1, 1, Q("7.62 mm")),
    Sketcher.Constraint("DistanceY", 0, 3, -1, 1, Q("6.73 mm")),
])
sketch20.setExpression("Constraints[0]", "Params.sketch20_diameter")
pad19 = body19.newObject("PartDesign::Pad", "Pad018")
pad19.Profile = sketch20
pad19.setExpression("Length", "Params.pad19_length")
pad19.Reversed = True
body20 = doc.addObject("PartDesign::Body", "Body019")

# Sketch on XZ plane
sketch21 = body20.newObject("Sketcher::SketchObject", "Sketch020")
sketch21.AttachmentSupport = (doc.getObject("XZ_Plane019"), [""])
sketch21.MapMode = "FlatFace"
sketch21.AttachmentOffset = App.Placement(App.Vector(0, 0, -5), App.Rotation())
sketch21.addGeometry(Part.Circle(App.Vector(-10.16, -6.73, 0), App.Vector(0, 0, 1), 0.25), False)
sketch21.addConstraint([
    Sketcher.Constraint("Diameter", 0, Q("0.5 mm")),
    Sketcher.Constraint("DistanceX", 0, 3, -1, 1, Q("10.16 mm")),
    Sketcher.Constraint("DistanceY", 0, 3, -1, 1, Q("6.73 mm")),
])
sketch21.setExpression("Constraints[0]", "Params.sketch21_diameter")
pad20 = body20.newObject("PartDesign::Pad", "Pad019")
pad20.Profile = sketch21
pad20.setExpression("Length", "Params.pad20_length")
pad20.Reversed = True
body21 = doc.addObject("PartDesign::Body", "Body020")

# Sketch on XZ plane
sketch22 = body21.newObject("Sketcher::SketchObject", "Sketch021")
sketch22.AttachmentSupport = (doc.getObject("XZ_Plane020"), [""])
sketch22.MapMode = "FlatFace"
sketch22.AttachmentOffset = App.Placement(App.Vector(0, 0, -5), App.Rotation())
sketch22.addGeometry(Part.Circle(App.Vector(-12.7, -6.73, 0), App.Vector(0, 0, 1), 0.25), False)
sketch22.addConstraint([
    Sketcher.Constraint("Diameter", 0, Q("0.5 mm")),
    Sketcher.Constraint("DistanceX", 0, 3, -1, 1, Q("12.7 mm")),
    Sketcher.Constraint("DistanceY", 0, 3, -1, 1, Q("6.73 mm")),
])
sketch22.setExpression("Constraints[0]", "Params.sketch22_diameter")
pad21 = body21.newObject("PartDesign::Pad", "Pad020")
pad21.Profile = sketch22
pad21.setExpression("Length", "Params.pad21_length")
pad21.Reversed = True

doc.recompute()
